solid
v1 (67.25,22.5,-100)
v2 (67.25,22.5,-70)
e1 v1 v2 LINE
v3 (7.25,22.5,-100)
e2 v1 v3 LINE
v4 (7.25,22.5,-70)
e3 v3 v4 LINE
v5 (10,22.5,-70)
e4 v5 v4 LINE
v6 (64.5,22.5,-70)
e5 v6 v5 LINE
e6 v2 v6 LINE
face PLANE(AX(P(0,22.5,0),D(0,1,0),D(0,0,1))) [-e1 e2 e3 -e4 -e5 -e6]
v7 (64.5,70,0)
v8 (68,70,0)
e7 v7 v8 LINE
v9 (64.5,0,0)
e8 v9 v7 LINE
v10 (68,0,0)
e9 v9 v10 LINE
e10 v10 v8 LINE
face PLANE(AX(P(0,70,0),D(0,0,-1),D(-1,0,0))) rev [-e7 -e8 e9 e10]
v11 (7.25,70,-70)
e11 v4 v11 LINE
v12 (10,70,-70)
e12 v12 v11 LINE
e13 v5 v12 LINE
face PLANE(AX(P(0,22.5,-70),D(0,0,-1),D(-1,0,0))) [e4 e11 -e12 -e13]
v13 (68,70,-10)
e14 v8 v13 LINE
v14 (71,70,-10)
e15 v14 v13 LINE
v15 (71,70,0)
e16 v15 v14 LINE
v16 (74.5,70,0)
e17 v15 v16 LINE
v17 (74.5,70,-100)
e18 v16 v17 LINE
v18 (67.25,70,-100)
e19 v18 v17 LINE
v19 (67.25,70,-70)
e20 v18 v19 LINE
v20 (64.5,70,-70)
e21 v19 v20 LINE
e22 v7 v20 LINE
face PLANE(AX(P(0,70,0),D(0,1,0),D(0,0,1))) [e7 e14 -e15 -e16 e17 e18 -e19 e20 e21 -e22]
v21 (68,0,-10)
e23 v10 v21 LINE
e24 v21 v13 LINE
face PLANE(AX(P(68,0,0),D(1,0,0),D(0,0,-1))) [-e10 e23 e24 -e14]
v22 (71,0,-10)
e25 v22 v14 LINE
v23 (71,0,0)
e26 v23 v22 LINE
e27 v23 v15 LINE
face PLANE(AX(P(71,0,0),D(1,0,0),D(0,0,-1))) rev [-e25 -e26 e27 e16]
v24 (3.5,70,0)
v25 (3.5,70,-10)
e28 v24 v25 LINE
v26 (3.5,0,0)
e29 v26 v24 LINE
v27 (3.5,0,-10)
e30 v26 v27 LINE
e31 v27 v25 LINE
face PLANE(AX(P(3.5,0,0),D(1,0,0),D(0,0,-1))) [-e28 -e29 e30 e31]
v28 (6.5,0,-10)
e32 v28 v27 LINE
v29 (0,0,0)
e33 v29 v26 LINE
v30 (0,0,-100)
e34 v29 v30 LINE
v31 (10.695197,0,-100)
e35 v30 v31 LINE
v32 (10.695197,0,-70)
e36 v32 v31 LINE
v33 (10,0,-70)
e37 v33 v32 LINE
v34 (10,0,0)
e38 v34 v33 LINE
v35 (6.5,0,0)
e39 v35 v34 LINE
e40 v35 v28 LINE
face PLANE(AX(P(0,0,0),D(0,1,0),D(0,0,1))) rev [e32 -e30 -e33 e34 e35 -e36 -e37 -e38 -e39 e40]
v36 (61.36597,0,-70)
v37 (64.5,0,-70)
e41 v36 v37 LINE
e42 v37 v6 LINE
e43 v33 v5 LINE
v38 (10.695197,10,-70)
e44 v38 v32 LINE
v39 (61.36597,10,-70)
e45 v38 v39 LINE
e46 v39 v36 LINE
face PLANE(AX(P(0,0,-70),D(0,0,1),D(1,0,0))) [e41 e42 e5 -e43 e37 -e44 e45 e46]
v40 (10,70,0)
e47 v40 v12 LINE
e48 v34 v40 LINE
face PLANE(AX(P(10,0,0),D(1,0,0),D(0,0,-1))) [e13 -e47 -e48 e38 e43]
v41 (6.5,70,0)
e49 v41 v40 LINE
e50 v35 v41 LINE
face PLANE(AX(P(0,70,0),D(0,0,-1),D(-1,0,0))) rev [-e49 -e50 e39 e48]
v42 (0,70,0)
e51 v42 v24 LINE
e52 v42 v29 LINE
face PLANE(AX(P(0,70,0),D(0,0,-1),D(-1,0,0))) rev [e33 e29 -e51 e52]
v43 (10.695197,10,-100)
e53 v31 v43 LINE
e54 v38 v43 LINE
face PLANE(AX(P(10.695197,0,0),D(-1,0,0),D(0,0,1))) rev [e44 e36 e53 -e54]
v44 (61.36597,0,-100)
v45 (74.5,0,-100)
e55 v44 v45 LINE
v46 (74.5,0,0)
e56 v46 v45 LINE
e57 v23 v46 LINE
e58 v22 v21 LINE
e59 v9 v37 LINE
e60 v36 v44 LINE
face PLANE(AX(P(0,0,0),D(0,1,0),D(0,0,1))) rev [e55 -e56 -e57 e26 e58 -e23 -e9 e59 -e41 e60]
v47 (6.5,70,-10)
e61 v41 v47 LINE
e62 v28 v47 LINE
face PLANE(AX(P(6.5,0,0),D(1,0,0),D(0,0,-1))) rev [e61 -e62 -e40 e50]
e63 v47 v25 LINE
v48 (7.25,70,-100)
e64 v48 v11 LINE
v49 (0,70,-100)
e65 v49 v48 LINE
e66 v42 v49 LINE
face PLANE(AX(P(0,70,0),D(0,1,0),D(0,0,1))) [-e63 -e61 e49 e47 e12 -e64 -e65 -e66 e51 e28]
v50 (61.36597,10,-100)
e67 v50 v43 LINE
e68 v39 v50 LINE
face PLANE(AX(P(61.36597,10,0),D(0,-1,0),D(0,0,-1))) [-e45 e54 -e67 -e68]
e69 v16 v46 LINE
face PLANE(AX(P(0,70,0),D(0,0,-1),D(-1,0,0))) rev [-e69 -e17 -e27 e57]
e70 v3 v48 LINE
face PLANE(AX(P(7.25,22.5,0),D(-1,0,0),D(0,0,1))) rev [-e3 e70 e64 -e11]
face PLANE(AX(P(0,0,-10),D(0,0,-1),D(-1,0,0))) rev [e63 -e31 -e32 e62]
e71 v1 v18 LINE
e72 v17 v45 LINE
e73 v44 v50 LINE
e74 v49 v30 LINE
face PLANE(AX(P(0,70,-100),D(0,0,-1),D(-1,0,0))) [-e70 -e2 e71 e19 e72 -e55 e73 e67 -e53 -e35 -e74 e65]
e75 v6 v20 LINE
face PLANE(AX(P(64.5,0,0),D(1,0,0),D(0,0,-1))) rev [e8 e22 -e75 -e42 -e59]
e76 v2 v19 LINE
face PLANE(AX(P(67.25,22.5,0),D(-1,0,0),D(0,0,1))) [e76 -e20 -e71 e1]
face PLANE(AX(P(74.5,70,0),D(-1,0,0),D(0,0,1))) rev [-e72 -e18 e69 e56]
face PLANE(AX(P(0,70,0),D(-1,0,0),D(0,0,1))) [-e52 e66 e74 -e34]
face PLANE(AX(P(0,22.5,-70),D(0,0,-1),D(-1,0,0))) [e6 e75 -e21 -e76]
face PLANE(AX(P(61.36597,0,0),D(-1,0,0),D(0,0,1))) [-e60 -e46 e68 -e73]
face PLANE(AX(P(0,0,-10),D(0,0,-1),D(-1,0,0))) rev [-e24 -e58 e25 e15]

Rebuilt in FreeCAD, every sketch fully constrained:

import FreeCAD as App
import Part
import Sketcher
from FreeCAD import Vector


def add_polygon(sketch, points):
    """Adds a closed chain of lines whose ends are joined by coincident constraints."""
    first, n = sketch.GeometryCount, len(points)
    for a, b in zip(points, points[1:] + points[:1]):
        sketch.addGeometry(Part.LineSegment(App.Vector(*a, 0), App.Vector(*b, 0)), False)
    for i in range(n):
        sketch.addConstraint(Sketcher.Constraint("Coincident", first + i, 2, first + (i + 1) % n, 1))

doc = App.newDocument("Part")
body = doc.addObject("PartDesign::Body", "Body")

# Sketch on XZ plane
sketch1 = doc.addObject("Sketcher::SketchObject", "Sketch")
body.addObject(sketch1)
sketch1.AttachmentSupport = (doc.XZ_Plane, [""])
sketch1.MapMode = "FlatFace"
add_polygon(sketch1, [(0, -100), (0, 0), (74.5, 0), (74.5, -100)])  # lines 0-3
sketch1.addConstraint(Sketcher.Constraint("Vertical", 0))
sketch1.addConstraint(Sketcher.Constraint("Horizontal", 1))
sketch1.addConstraint(Sketcher.Constraint("Vertical", 2))
sketch1.addConstraint(Sketcher.Constraint("Horizontal", 3))
sketch1.addConstraint(Sketcher.Constraint("Coincident", 0, 2, -1, 1))
sketch1.addConstraint(Sketcher.Constraint("DistanceY", 0, 1, 0, 2, 100.0))
sketch1.addConstraint(Sketcher.Constraint("DistanceX", 1, 1, 1, 2, 74.5))
pad1 = doc.addObject("PartDesign::Pad", "Pad")
body.addObject(pad1)
pad1.Profile = sketch1
pad1.Length = 70
pad1.Reversed = True

# Sketch on XZ plane
sketch2 = doc.addObject("Sketcher::SketchObject", "Sketch001")
body.addObject(sketch2)
sketch2.AttachmentSupport = (doc.XZ_Plane, [""])
sketch2.MapMode = "FlatFace"
sketch2.AttachmentOffset = App.Placement(Vector(0, 0, -70), App.Rotation())
add_polygon(sketch2, [(10, -70), (10, 0), (64.5, 0), (64.5, -70)])  # lines 0-3
sketch2.addConstraint(Sketcher.Constraint("Vertical", 0))
sketch2.addConstraint(Sketcher.Constraint("Horizontal", 1))
sketch2.addConstraint(Sketcher.Constraint("Vertical", 2))
sketch2.addConstraint(Sketcher.Constraint("Horizontal", 3))
sketch2.addConstraint(Sketcher.Constraint("PointOnObject", 0, 2, -1))
sketch2.addConstraint(Sketcher.Constraint("DistanceY", 0, 1, 0, 2, 70.0))
sketch2.addConstraint(Sketcher.Constraint("DistanceX", 1, 1, 1, 2, 54.5))
sketch2.addConstraint(Sketcher.Constraint("DistanceX", -1, 1, 0, 2, 10.0))
pocket1 = doc.addObject("PartDesign::Pocket", "Pocket")
body.addObject(pocket1)
pocket1.Profile = sketch2
pocket1.Type = "ThroughAll"
pocket1.Reversed = True

# Sketch on XZ plane
sketch3 = doc.addObject("Sketcher::SketchObject", "Sketch002")
body.addObject(sketch3)
sketch3.AttachmentSupport = (doc.XZ_Plane, [""])
sketch3.MapMode = "FlatFace"
sketch3.AttachmentOffset = App.Placement(Vector(0, 0, -70), App.Rotation())
add_polygon(sketch3, [(7.25, -100), (7.25, -70), (67.25, -70), (67.25, -100)])  # lines 0-3
sketch3.addConstraint(Sketcher.Constraint("Vertical", 0))
sketch3.addConstraint(Sketcher.Constraint("Horizontal", 1))
sketch3.addConstraint(Sketcher.Constraint("Vertical", 2))
sketch3.addConstraint(Sketcher.Constraint("Horizontal", 3))
sketch3.addConstraint(Sketcher.Constraint("DistanceX", 1, 1, 1, 2, 60.0))
sketch3.addConstraint(Sketcher.Constraint("DistanceY", 0, 1, 0, 2, 30.0))
sketch3.addConstraint(Sketcher.Constraint("DistanceY", 0, 2, -1, 1, 70.0))
sketch3.addConstraint(Sketcher.Constraint("DistanceX", -1, 1, 0, 2, 7.25))
pocket2 = doc.addObject("PartDesign::Pocket", "Pocket001")
body.addObject(pocket2)
pocket2.Profile = sketch3
pocket2.Length = 47.5
pocket2.Reversed = True

# Sketch on XZ plane
sketch4 = doc.addObject("Sketcher::SketchObject", "Sketch003")
body.addObject(sketch4)
sketch4.AttachmentSupport = (doc.XZ_Plane, [""])
sketch4.MapMode = "FlatFace"
sketch4.AttachmentOffset = App.Placement(Vector(0, 0, -70), App.Rotation())
add_polygon(sketch4, [(68, -10), (68, 0), (71, 0), (71, -10)])  # lines 0-3
sketch4.addConstraint(Sketcher.Constraint("Vertical", 0))
sketch4.addConstraint(Sketcher.Constraint("Horizontal", 1))
sketch4.addConstraint(Sketcher.Constraint("Vertical", 2))
sketch4.addConstraint(Sketcher.Constraint("Horizontal", 3))
sketch4.addConstraint(Sketcher.Constraint("PointOnObject", 0, 2, -1))
sketch4.addConstraint(Sketcher.Constraint("DistanceX", 1, 1, 1, 2, 3.0))
sketch4.addConstraint(Sketcher.Constraint("DistanceY", 0, 1, 0, 2, 10.0))
sketch4.addConstraint(Sketcher.Constraint("DistanceX", -1, 1, 0, 2, 68.0))
pocket3 = doc.addObject("PartDesign::Pocket", "Pocket002")
body.addObject(pocket3)
pocket3.Profile = sketch4
pocket3.Type = "ThroughAll"
pocket3.Reversed = True

# Sketch on XZ plane
sketch5 = doc.addObject("Sketcher::SketchObject", "Sketch004")
body.addObject(sketch5)
sketch5.AttachmentSupport = (doc.XZ_Plane, [""])
sketch5.MapMode = "FlatFace"
sketch5.AttachmentOffset = App.Placement(Vector(0, 0, -70), App.Rotation())
add_polygon(sketch5, [(3.5, -10), (3.5, 0), (6.5, 0), (6.5, -10)])  # lines 0-3
sketch5.addConstraint(Sketcher.Constraint("Vertical", 0))
sketch5.addConstraint(Sketcher.Constraint("Horizontal", 1))
sketch5.addConstraint(Sketcher.Constraint("Vertical", 2))
sketch5.addConstraint(Sketcher.Constraint("Horizontal", 3))
sketch5.addConstraint(Sketcher.Constraint("PointOnObject", 0, 2, -1))
sketch5.addConstraint(Sketcher.Constraint("DistanceX", 1, 1, 1, 2, 3.0))
sketch5.addConstraint(Sketcher.Constraint("DistanceY", 0, 1, 0, 2, 10.0))
sketch5.addConstraint(Sketcher.Constraint("DistanceX", -1, 1, 0, 2, 3.5))
pocket4 = doc.addObject("PartDesign::Pocket", "Pocket003")
body.addObject(pocket4)
pocket4.Profile = sketch5
pocket4.Type = "ThroughAll"
pocket4.Reversed = True

# Sketch on XY plane
sketch6 = doc.addObject("Sketcher::SketchObject", "Sketch005")
body.addObject(sketch6)
sketch6.AttachmentSupport = (doc.XY_Plane, [""])
sketch6.MapMode = "FlatFace"
sketch6.AttachmentOffset = App.Placement(Vector(0, 0, -100), App.Rotation())
add_polygon(sketch6, [(61.36597, 10), (61.36597, 0), (10.695197, 0), (10.695197, 10)])  # lines 0-3
sketch6.addConstraint(Sketcher.Constraint("Vertical", 0))
sketch6.addConstraint(Sketcher.Constraint("Horizontal", 1))
sketch6.addConstraint(Sketcher.Constraint("Vertical", 2))
sketch6.addConstraint(Sketcher.Constraint("Horizontal", 3))
sketch6.addConstraint(Sketcher.Constraint("PointOnObject", 0, 2, -1))
sketch6.addConstraint(Sketcher.Constraint("DistanceY", 0, 2, 0, 1, 10.0))
sketch6.addConstraint(Sketcher.Constraint("DistanceX", 1, 2, 1, 1, 50.670773))
sketch6.addConstraint(Sketcher.Constraint("DistanceX", -1, 1, 0, 2, 61.36597))
pocket5 = doc.addObject("PartDesign::Pocket", "Pocket004")
body.addObject(pocket5)
pocket5.Profile = sketch6
pocket5.Type = "ThroughAll"
pocket5.Reversed = True

doc.recompute()
